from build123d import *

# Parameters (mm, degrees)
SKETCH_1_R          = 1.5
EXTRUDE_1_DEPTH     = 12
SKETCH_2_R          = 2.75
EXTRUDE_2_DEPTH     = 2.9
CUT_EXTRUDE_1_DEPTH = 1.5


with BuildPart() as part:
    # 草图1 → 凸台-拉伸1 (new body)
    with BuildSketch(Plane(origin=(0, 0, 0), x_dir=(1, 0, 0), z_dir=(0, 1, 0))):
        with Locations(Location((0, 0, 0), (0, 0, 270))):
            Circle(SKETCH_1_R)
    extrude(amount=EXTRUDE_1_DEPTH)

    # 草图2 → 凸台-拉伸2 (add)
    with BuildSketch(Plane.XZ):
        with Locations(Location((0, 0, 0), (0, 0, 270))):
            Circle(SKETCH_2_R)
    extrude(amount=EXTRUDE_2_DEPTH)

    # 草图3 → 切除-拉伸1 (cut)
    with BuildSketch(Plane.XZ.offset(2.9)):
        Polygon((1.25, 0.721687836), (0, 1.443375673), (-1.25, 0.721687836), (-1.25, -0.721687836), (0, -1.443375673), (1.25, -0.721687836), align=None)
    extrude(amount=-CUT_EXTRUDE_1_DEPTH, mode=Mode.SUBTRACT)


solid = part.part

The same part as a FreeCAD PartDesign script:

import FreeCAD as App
import Part
import Sketcher

V = App.Vector
Q = App.Units.Quantity


def add_polygon(sketch, points):
    """Adds a closed chain of lines whose ends are joined by coincident constraints."""
    first, n = sketch.GeometryCount, len(points)
    for a, b in zip(points, points[1:] + points[:1]):
        sketch.addGeometry(Part.LineSegment(App.Vector(*a, 0), App.Vector(*b, 0)), False)
    for i in range(n):
        sketch.addConstraint(Sketcher.Constraint("Coincident", first + i, 2, first + (i + 1) % n, 1))

doc = App.newDocument("Part")
body = doc.addObject("PartDesign::Body", "Body")

sketch1 = body.newObject("Sketcher::SketchObject", "Sketch")
sketch1.AttachmentSupport = (doc.getObject("XZ_Plane"), [""])
sketch1.MapMode = "FlatFace"
sketch1.addGeometry(Part.Circle(V(0, 0, 0), V(0, 0, 1), 1.5), False)
sketch1.addConstraint(Sketcher.Constraint("Coincident", 0, 3, -1, 1))
sketch1.addConstraint(Sketcher.Constraint("Diameter", 0, 3.0))
pad1 = body.newObject("PartDesign::Pad", "Pad")
pad1.Profile = sketch1
pad1.Length = 12
pad1.Reversed = True

sketch2 = body.newObject("Sketcher::SketchObject", "Sketch001")
sketch2.AttachmentSupport = (doc.getObject("XZ_Plane"), [""])
sketch2.MapMode = "FlatFace"
sketch2.addGeometry(Part.Circle(V(0, 0, 0), V(0, 0, 1), 2.8), False)
sketch2.addConstraint(Sketcher.Constraint("Coincident", 0, 3, -1, 1))
sketch2.addConstraint(Sketcher.Constraint("Diameter", 0, 5.5))
pad2 = body.newObject("PartDesign::Pad", "Pad001")
pad2.Profile = sketch2
pad2.Length = 2.9

sketch3 = body.newObject("Sketcher::SketchObject", "Sketch002")
sketch3.AttachmentSupport = (doc.getObject("XZ_Plane"), [""])
sketch3.MapMode = "FlatFace"
sketch3.AttachmentOffset = App.Placement(V(0, 0, 2.9), App.Rotation())
add_polygon(sketch3, [(1.2, 0.7), (0, 1.4), (-1.2, 0.7), (-1.2, -0.7), (0, -1.4), (1.2, -0.7)])
sketch3.addConstraint(Sketcher.Constraint("Vertical", 2))
sketch3.addConstraint(Sketcher.Constraint("Vertical", 5))
sketch3.addConstraint(Sketcher.Constraint("Symmetric", 0, 2, 3, 2, -1, 1))
sketch3.addConstraint(Sketcher.Constraint("Symmetric", 1, 2, 4, 2, -1, 1))
sketch3.addConstraint(Sketcher.Constraint("PointOnObject", 0, 2, -2))
sketch3.addConstraint(Sketcher.Constraint("Parallel", 0, 3))
sketch3.addConstraint(Sketcher.Constraint("Horizontal", 2, 2, 4, 2))
sketch3.addConstraint(Sketcher.Constraint("Angle", 0, Q("150 deg")))
sketch3.addConstraint(Sketcher.Constraint("DistanceX", 2, 2, 4, 2, 2.5))
sketch3.addConstraint(Sketcher.Constraint("DistanceY", 2, 2, 2, 1, 1.443376))
pocket1 = body.newObject("PartDesign::Pocket", "Pocket")
pocket1.Profile = sketch3
pocket1.Length = 1.5

doc.recompute()
